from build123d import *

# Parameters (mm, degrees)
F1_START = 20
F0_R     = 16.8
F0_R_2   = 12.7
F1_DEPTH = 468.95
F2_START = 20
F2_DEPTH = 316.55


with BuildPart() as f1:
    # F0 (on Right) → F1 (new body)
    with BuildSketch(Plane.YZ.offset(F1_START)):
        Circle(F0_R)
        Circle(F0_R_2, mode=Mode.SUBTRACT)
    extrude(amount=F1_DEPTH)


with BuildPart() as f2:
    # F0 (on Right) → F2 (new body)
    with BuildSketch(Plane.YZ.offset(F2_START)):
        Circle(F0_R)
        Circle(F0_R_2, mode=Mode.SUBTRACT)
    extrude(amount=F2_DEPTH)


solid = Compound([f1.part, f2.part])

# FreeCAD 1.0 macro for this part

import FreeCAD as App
import Part
import Sketcher

V = App.Vector

doc = App.newDocument("Part")
body = doc.addObject("PartDesign::Body", "Body")

# Sketch on YZ plane
sketch1 = body.newObject("Sketcher::SketchObject", "Sketch")
sketch1.AttachmentSupport = (doc.getObject("YZ_Plane"), [""])
sketch1.MapMode = "FlatFace"
sketch1.AttachmentOffset = App.Placement(V(0, 0, 20), App.Rotation())
sketch1.addGeometry(Part.Circle(V(0, 0, 0), V(0, 0, 1), 17), False)
sketch1.addGeometry(Part.Circle(V(0, 0, 0), V(0, 0, 1), 13), False)
sketch1.addConstraint(Sketcher.Constraint("Coincident", 0, 3, -1, 1))
sketch1.addConstraint(Sketcher.Constraint("Coincident", 1, 3, -1, 1))
sketch1.addConstraint(Sketcher.Constraint("Diameter", 0, 33.6))
sketch1.addConstraint(Sketcher.Constraint("Diameter", 1, 25.4))
pad1 = body.newObject("PartDesign::Pad", "Pad")
pad1.Profile = sketch1
pad1.Length = 468.95
body2 = doc.addObject("PartDesign::Body", "Body001")

# Sketch on YZ plane
sketch2 = body2.newObject("Sketcher::SketchObject", "Sketch001")
sketch2.AttachmentSupport = (doc.getObject("YZ_Plane001"), [""])
sketch2.MapMode = "FlatFace"
sketch2.AttachmentOffset = App.Placement(V(0, 0, 20), App.Rotation())
sketch2.addGeometry(Part.Circle(V(0, 0, 0), V(0, 0, 1), 17), False)
sketch2.addGeometry(Part.Circle(V(0, 0, 0), V(0, 0, 1), 13), False)
sketch2.addConstraint(Sketcher.Constraint("Coincident", 0, 3, -1, 1))
sketch2.addConstraint(Sketcher.Constraint("Coincident", 1, 3, -1, 1))
sketch2.addConstraint(Sketcher.Constraint("Diameter", 0, 33.6))
sketch2.addConstraint(Sketcher.Constraint("Diameter", 1, 25.4))
pad2 = body2.newObject("PartDesign::Pad", "Pad001")
pad2.Profile = sketch2
pad2.Length = 316.55

doc.recompute()
